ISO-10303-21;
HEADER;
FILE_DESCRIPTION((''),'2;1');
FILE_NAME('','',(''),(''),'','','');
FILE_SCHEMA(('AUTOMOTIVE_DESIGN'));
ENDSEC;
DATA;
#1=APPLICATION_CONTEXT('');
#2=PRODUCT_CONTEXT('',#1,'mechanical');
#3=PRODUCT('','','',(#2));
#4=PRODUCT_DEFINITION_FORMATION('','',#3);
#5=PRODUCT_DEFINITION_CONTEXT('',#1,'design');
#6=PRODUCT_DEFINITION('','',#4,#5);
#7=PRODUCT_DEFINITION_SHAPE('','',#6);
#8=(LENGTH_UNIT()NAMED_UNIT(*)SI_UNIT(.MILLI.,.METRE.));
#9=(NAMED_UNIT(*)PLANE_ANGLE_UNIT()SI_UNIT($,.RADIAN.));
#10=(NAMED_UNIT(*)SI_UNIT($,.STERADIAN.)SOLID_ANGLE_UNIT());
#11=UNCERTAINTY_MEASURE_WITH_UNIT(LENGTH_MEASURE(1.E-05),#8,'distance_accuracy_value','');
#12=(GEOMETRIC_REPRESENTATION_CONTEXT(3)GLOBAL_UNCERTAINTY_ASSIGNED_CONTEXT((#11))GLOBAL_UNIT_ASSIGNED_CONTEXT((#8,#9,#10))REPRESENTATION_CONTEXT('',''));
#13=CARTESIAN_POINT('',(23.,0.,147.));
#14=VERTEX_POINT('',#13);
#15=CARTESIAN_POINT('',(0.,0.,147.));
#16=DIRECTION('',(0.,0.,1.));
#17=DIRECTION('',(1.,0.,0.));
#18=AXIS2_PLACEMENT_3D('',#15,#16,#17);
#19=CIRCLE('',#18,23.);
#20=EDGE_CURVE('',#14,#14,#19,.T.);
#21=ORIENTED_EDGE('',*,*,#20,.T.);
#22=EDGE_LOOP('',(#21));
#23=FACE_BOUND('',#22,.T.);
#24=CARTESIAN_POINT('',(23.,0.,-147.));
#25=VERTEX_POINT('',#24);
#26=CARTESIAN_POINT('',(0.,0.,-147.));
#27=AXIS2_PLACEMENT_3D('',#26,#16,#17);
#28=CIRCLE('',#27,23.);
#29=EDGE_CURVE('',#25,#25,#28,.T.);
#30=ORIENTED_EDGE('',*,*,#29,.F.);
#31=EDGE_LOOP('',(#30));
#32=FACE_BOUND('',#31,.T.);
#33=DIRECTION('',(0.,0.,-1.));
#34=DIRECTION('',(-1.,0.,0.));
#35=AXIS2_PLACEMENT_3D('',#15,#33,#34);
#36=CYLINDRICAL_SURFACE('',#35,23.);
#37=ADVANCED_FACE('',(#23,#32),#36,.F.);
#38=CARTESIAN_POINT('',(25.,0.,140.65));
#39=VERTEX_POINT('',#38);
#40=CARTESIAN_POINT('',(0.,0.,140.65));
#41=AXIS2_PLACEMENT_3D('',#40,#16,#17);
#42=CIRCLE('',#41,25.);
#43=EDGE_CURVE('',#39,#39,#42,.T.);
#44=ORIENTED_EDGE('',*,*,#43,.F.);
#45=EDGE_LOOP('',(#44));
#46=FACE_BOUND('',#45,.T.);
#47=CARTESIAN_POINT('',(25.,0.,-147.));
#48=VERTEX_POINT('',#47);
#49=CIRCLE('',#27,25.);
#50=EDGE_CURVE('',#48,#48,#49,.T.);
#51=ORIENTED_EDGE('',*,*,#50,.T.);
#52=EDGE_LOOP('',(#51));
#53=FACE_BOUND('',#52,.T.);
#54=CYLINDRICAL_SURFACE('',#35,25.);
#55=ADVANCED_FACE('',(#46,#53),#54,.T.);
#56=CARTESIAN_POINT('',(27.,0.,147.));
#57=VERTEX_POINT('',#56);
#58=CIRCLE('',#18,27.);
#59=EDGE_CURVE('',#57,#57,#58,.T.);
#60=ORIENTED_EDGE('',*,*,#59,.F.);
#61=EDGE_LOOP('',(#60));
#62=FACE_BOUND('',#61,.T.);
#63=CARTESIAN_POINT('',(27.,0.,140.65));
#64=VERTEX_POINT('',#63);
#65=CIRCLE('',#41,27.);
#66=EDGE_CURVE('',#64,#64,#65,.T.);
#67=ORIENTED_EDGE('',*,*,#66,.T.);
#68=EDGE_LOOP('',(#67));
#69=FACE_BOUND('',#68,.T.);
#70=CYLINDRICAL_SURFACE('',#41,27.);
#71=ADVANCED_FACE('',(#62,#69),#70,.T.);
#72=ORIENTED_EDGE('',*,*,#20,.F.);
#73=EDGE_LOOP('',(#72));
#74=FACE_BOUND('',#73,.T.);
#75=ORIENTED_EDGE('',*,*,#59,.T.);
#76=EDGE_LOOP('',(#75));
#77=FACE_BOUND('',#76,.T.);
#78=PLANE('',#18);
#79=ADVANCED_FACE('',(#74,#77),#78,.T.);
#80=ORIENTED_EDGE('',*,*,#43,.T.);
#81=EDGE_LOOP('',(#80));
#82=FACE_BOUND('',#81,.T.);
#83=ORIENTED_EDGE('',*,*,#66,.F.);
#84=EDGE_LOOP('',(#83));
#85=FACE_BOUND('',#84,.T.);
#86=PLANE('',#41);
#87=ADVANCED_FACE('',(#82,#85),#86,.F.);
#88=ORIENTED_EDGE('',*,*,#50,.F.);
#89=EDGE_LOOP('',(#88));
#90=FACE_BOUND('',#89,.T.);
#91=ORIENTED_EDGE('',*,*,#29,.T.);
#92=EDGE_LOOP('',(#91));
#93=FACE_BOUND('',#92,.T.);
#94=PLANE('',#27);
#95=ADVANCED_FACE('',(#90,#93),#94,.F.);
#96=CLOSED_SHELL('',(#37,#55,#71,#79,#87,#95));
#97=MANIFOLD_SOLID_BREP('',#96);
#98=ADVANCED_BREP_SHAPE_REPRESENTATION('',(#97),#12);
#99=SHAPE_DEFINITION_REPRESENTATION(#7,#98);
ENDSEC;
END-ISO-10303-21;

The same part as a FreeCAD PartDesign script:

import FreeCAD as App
import Part
import Sketcher

V = App.Vector

doc = App.newDocument("Part")
body = doc.addObject("PartDesign::Body", "Body")

sketch1 = body.newObject("Sketcher::SketchObject", "Sketch")
sketch1.AttachmentSupport = (doc.getObject("XY_Plane"), [""])
sketch1.MapMode = "FlatFace"
sketch1.addGeometry([
    Part.Circle(V(0, 0, 0), V(0, 0, 1), 25),
    Part.Circle(V(0, 0, 0), V(0, 0, 1), 23),
], False)
sketch1.addConstraint([
    Sketcher.Constraint("Coincident", 0, 3, -1, 1),
    Sketcher.Constraint("Coincident", 1, 3, -1, 1),
    Sketcher.Constraint("Diameter", 0, 50.0),
    Sketcher.Constraint("Diameter", 1, 46.0),
])
pad1 = body.newObject("PartDesign::Pad", "Pad")
pad1.Profile = sketch1
pad1.Length = 294
pad1.Midplane = True

sketch2 = body.newObject("Sketcher::SketchObject", "Sketch001")
sketch2.AttachmentSupport = (doc.getObject("XY_Plane"), [""])
sketch2.MapMode = "FlatFace"
sketch2.AttachmentOffset = App.Placement(V(0, 0, 147), App.Rotation())
sketch2.addGeometry([
    Part.Circle(V(0, 0, 0), V(0, 0, 1), 27),
    Part.Circle(V(0, 0, 0), V(0, 0, 1), 25),
], False)
sketch2.addConstraint([
    Sketcher.Constraint("Coincident", 0, 3, -1, 1),
    Sketcher.Constraint("Coincident", 1, 3, -1, 1),
    Sketcher.Constraint("Diameter", 0, 54.0),
    Sketcher.Constraint("Diameter", 1, 50.0),
])
pad2 = body.newObject("PartDesign::Pad", "Pad001")
pad2.Profile = sketch2
pad2.Length = 6.35
pad2.Reversed = True

doc.recompute()
